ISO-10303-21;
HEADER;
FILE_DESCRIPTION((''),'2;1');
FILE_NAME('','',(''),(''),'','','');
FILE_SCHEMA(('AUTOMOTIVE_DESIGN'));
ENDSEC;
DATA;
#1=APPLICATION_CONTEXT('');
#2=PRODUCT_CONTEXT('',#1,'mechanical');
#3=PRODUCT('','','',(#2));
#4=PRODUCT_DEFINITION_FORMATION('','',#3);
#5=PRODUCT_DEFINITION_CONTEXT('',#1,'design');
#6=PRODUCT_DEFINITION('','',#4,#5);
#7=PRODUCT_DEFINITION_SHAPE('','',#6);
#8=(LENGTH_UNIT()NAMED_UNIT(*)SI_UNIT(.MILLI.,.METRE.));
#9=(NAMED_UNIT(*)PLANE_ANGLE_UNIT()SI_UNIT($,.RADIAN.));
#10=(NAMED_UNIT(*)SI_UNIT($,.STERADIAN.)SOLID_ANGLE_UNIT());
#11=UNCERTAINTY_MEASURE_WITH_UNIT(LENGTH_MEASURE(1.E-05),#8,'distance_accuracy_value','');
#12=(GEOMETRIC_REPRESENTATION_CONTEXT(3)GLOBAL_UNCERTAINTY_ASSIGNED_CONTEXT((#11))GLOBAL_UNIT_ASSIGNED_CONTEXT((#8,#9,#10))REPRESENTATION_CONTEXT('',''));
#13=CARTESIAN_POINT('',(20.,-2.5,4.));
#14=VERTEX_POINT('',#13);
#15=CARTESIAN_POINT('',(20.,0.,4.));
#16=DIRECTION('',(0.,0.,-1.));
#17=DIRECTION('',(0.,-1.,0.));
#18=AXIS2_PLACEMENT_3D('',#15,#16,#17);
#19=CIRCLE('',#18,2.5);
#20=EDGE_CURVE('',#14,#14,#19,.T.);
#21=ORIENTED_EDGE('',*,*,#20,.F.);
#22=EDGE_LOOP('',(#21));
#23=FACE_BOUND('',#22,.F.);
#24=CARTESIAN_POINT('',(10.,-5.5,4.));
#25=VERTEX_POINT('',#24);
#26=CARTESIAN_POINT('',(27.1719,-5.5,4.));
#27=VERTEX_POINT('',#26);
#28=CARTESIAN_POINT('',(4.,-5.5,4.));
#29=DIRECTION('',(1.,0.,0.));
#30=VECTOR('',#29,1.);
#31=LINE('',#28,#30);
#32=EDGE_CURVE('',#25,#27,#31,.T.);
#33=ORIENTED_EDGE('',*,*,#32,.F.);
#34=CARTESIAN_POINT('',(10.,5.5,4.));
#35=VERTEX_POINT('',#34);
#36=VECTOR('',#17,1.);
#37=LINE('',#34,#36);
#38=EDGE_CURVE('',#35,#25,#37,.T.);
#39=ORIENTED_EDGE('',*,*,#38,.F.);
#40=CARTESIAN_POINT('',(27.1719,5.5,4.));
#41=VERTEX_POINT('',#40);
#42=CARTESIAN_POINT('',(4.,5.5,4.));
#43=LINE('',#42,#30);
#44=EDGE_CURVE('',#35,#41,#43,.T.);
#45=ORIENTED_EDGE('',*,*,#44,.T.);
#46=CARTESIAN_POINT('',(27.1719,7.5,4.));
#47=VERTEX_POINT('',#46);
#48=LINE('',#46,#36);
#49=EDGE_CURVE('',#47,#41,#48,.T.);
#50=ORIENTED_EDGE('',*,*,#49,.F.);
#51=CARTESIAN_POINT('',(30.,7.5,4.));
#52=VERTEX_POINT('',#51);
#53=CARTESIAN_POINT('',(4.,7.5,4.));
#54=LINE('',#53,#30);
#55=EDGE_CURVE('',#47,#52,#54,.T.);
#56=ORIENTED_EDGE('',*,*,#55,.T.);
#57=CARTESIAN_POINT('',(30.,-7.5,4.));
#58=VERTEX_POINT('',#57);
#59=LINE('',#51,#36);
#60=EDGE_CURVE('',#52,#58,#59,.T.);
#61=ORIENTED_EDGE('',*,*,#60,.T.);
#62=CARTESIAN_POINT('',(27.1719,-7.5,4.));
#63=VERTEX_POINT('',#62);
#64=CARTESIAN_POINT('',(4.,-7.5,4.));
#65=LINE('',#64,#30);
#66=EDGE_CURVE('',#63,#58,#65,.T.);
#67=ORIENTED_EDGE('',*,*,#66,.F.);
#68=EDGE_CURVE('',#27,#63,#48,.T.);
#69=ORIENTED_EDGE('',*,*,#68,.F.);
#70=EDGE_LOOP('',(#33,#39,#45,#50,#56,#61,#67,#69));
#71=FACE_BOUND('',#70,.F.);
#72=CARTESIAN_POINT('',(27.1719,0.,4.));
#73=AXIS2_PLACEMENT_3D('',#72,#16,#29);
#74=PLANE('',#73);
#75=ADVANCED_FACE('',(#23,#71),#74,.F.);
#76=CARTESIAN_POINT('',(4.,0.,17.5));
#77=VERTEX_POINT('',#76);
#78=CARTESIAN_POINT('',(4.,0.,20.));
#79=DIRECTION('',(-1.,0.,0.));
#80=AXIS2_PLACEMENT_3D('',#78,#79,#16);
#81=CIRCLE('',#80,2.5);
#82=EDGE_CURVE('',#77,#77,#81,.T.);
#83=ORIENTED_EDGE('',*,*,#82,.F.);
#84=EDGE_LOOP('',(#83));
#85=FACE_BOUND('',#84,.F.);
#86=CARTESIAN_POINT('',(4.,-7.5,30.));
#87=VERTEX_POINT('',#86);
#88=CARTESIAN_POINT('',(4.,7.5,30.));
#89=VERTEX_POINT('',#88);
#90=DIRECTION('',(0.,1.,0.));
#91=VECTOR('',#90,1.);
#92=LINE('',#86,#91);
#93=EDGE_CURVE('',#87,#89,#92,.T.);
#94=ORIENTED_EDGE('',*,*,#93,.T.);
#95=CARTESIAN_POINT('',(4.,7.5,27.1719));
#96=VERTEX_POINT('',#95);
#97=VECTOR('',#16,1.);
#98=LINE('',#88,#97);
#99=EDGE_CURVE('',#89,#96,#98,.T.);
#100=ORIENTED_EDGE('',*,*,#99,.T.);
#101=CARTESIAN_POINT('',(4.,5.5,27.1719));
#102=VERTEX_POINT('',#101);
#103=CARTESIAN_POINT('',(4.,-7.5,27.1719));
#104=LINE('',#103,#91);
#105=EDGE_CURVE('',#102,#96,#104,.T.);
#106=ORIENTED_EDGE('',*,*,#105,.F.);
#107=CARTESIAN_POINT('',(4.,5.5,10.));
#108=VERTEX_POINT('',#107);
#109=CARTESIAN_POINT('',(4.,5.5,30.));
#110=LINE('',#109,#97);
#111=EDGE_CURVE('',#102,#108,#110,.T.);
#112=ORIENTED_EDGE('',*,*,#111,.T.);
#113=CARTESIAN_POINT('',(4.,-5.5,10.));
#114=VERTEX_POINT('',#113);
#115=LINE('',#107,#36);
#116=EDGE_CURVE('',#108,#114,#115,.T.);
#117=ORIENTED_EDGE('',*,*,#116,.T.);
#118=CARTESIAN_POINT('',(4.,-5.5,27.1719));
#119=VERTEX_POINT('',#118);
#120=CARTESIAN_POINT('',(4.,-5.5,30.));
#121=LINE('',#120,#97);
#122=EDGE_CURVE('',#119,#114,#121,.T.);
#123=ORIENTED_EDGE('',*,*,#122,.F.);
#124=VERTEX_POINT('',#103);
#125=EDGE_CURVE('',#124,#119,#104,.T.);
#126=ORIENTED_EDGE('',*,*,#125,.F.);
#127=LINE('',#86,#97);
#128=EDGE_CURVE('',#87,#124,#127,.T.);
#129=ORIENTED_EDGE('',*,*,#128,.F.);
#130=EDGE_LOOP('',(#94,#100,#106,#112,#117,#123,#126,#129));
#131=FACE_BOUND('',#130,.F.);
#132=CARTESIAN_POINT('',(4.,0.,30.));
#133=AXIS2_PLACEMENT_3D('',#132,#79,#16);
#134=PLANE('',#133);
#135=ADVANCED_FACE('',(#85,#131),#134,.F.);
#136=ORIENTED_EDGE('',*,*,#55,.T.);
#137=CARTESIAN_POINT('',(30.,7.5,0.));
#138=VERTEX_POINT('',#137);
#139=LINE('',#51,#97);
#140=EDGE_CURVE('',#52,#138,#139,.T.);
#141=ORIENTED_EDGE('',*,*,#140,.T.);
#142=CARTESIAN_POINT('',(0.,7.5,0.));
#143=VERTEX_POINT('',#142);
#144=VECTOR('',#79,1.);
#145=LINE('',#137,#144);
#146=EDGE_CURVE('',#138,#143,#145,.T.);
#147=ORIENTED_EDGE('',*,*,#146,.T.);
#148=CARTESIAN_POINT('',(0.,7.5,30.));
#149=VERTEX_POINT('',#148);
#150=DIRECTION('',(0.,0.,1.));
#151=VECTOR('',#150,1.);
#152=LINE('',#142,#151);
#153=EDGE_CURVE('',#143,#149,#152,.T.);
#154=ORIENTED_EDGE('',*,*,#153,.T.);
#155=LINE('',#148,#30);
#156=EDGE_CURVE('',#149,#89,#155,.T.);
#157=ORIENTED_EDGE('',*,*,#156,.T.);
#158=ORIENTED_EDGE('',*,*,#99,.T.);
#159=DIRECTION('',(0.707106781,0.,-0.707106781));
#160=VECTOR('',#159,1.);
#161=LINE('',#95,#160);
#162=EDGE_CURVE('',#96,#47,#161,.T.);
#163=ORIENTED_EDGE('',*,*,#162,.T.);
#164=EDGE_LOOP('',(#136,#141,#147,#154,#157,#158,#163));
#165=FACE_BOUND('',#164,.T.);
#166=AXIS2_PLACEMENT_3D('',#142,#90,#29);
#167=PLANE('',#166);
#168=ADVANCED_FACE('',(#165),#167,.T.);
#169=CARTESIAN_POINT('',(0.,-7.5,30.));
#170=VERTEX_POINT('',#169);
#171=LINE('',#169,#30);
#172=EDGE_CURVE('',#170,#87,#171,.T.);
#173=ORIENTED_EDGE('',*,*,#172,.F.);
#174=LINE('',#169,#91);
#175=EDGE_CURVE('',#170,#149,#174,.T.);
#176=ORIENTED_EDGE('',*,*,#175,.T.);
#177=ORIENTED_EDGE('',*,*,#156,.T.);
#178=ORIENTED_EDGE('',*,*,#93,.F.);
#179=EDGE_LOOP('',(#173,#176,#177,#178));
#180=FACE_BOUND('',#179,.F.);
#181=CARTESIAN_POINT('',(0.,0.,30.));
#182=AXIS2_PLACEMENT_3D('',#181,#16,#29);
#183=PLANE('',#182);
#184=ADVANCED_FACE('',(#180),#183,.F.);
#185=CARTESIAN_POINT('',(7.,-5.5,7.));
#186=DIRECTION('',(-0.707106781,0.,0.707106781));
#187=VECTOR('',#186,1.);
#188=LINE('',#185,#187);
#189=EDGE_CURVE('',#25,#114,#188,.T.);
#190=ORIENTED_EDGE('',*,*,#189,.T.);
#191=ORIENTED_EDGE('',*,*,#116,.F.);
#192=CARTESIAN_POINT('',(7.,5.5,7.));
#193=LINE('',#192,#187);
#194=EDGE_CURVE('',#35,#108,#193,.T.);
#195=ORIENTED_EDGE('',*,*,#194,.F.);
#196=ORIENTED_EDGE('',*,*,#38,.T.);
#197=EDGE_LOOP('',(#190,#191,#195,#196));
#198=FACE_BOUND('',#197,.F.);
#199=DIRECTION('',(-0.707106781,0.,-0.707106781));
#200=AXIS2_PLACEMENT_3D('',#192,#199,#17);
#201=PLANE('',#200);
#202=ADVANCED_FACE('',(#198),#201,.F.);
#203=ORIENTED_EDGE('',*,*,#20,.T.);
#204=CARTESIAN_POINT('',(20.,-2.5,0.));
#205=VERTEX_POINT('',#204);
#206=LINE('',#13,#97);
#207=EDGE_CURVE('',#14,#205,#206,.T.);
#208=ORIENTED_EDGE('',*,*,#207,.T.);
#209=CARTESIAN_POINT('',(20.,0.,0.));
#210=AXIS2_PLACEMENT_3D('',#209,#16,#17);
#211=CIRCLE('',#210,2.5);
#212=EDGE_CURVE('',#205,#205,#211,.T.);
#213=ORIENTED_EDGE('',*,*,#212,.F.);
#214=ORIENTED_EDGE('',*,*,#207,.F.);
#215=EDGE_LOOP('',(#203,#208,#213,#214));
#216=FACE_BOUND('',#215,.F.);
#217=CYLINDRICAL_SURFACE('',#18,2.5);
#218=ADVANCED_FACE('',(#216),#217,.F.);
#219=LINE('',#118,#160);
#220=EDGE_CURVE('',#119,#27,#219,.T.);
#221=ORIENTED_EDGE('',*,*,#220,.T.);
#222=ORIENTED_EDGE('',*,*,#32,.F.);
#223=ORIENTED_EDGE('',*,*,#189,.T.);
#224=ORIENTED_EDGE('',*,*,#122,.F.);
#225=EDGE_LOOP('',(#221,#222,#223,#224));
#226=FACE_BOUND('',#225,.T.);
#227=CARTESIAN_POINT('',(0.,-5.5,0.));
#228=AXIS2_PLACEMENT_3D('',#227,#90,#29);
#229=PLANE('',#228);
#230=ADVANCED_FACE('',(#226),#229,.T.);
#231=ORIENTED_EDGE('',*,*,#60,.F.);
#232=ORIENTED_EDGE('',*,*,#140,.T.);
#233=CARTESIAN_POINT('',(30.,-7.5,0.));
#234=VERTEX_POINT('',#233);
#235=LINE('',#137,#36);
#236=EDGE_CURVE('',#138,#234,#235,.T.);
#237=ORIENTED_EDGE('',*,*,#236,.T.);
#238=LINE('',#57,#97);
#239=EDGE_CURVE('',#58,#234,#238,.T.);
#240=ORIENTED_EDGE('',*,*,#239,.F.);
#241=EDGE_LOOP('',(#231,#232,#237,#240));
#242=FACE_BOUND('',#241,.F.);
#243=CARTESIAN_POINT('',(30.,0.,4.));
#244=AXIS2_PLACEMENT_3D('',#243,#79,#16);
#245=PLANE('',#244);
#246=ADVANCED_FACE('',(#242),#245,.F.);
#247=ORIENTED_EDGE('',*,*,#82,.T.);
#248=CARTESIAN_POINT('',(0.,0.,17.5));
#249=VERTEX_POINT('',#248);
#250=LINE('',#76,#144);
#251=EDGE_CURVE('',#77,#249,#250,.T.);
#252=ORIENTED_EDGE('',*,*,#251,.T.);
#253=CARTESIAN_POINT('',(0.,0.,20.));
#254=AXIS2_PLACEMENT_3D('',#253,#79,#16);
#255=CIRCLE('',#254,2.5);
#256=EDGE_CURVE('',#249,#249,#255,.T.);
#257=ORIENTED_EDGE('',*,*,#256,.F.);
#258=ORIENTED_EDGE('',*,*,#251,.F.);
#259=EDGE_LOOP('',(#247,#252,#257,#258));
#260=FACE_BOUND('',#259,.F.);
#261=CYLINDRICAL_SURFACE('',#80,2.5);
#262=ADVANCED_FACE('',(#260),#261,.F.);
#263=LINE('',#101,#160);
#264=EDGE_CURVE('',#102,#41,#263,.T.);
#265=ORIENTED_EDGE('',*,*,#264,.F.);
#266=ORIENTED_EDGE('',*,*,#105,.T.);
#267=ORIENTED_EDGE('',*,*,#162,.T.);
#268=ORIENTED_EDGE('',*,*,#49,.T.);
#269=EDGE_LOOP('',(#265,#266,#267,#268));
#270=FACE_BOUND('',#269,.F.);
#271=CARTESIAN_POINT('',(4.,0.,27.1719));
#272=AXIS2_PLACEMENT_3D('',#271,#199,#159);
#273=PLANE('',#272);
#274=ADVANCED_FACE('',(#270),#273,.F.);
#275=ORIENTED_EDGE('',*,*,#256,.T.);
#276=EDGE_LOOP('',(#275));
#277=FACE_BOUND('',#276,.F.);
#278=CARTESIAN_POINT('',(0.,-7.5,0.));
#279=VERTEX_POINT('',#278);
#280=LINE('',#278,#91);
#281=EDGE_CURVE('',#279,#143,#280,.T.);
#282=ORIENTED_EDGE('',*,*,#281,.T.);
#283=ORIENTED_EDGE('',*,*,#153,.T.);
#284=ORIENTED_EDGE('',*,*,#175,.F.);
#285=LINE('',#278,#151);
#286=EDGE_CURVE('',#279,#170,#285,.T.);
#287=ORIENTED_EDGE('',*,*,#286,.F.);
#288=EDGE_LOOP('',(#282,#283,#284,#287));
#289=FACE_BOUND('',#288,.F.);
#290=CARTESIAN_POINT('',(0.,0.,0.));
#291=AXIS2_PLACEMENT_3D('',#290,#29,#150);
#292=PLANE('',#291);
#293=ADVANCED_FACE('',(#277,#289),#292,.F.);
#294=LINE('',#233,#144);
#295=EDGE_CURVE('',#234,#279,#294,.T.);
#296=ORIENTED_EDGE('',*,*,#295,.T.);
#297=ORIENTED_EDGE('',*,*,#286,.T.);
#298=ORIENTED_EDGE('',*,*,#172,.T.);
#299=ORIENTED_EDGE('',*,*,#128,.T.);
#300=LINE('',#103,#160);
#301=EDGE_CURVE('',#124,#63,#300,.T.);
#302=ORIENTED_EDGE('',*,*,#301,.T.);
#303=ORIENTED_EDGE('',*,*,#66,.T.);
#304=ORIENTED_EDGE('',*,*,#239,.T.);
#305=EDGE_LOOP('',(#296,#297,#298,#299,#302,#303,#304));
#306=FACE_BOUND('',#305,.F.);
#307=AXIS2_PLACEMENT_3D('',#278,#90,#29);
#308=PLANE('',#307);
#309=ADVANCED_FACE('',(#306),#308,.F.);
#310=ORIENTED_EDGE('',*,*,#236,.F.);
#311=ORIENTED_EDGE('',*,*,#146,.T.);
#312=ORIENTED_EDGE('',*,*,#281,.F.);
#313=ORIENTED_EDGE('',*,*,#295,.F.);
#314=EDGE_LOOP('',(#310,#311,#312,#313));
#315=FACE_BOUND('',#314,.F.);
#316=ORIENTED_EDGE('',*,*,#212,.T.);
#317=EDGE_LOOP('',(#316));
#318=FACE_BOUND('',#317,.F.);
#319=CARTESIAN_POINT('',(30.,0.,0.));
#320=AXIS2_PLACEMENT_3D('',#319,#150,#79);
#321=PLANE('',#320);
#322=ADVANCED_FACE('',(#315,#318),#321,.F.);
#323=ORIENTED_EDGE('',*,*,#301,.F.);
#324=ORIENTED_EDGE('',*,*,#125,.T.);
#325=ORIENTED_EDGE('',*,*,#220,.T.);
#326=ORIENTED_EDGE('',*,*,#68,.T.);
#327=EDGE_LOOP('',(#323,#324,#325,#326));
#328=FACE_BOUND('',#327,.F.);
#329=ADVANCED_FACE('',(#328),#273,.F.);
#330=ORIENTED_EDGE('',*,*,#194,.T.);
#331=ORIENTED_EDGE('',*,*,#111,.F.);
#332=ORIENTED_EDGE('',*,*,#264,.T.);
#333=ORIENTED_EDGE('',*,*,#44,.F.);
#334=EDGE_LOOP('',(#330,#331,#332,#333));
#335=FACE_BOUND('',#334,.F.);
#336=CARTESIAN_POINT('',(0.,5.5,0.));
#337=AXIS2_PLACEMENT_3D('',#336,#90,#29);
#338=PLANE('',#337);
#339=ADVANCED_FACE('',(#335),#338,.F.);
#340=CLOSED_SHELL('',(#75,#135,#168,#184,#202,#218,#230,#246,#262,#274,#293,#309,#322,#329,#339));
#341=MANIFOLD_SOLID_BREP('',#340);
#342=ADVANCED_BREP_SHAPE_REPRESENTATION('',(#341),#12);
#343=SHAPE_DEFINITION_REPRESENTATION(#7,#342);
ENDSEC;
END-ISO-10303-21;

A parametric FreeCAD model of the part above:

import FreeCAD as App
import Part
import Sketcher

V = App.Vector


def edges_at(feature, points):
    """Names of the edges that pass closest to the given points."""
    edges = feature.Shape.Edges
    near = lambda p: min(range(len(edges)), key=lambda i: edges[i].distToShape(Part.Vertex(*p))[0])
    return sorted({f"Edge{near(p) + 1}" for p in points})

doc = App.newDocument("Part")
params = doc.addObject("Spreadsheet::Sheet", "Params")
for row, (alias, value) in enumerate([
    ("sketch1_width", "30 mm"),
    ("sketch1_width2", "4 mm"),
    ("sketch1_length", "32.77 mm"),
    ("pad1_length", "15 mm"),
    ("sketch2_length", "32.77 mm"),
    ("pocket1_length", "11 mm"),
    ("chamfer_size", "6 mm"),
    ("sketch3_diameter", "5 mm"),
    ("hole_diameter", "5 mm"),
    ("hole_depth", "4 mm"),
    ("sketch4_diameter", "5 mm"),
    ("hole2_diameter", "5 mm"),
    ("hole2_depth", "4 mm"),
], start=1):
    params.set(f"A{row}", alias)
    params.set(f"B{row}", "=" + value)
    params.setAlias(f"B{row}", alias)

body = doc.addObject("PartDesign::Body", "Body")

# Sketch on XZ plane
sketch1 = body.newObject("Sketcher::SketchObject", "Sketch")
sketch1.AttachmentSupport = (doc.getObject("XZ_Plane"), [""])
sketch1.MapMode = "FlatFace"
sketch1.addGeometry(Part.LineSegment(V(30, 0, 0), V(0, 0, 0)), False)
sketch1.addGeometry(Part.LineSegment(V(0, 0, 0), V(0, 30, 0)), False)
sketch1.addGeometry(Part.LineSegment(V(0, 30, 0), V(4, 30, 0)), False)
sketch1.addGeometry(Part.LineSegment(V(4, 30, 0), V(4, 27.2, 0)), False)
sketch1.addGeometry(Part.LineSegment(V(4, 27.2, 0), V(27.2, 4, 0)), False)
sketch1.addGeometry(Part.LineSegment(V(27.2, 4, 0), V(30, 4, 0)), False)
sketch1.addGeometry(Part.LineSegment(V(30, 4, 0), V(30, 0, 0)), False)
sketch1.addConstraint(Sketcher.Constraint("Coincident", 0, 2, 1, 1))
sketch1.addConstraint(Sketcher.Constraint("Coincident", 1, 2, 2, 1))
sketch1.addConstraint(Sketcher.Constraint("Coincident", 2, 2, 3, 1))
sketch1.addConstraint(Sketcher.Constraint("Coincident", 3, 2, 4, 1))
sketch1.addConstraint(Sketcher.Constraint("Coincident", 4, 2, 5, 1))
sketch1.addConstraint(Sketcher.Constraint("Coincident", 5, 2, 6, 1))
sketch1.addConstraint(Sketcher.Constraint("Coincident", 6, 2, 0, 1))
sketch1.addConstraint(Sketcher.Constraint("Horizontal", 0))
sketch1.addConstraint(Sketcher.Constraint("Vertical", 1))
sketch1.addConstraint(Sketcher.Constraint("Horizontal", 2))
sketch1.addConstraint(Sketcher.Constraint("Vertical", 3))
sketch1.addConstraint(Sketcher.Constraint("Horizontal", 5))
sketch1.addConstraint(Sketcher.Constraint("Vertical", 6))
sketch1.addConstraint(Sketcher.Constraint("Coincident", 0, 2, -1, 1))
sketch1.addConstraint(Sketcher.Constraint("Equal", 0, 1))
sketch1.addConstraint(Sketcher.Constraint("Equal", 5, 3))
sketch1.addConstraint(Sketcher.Constraint("Equal", 2, 6))
sketch1.addConstraint(Sketcher.Constraint("DistanceX", 0, 2, 0, 1, 30.0))
sketch1.addConstraint(Sketcher.Constraint("DistanceX", 2, 1, 2, 2, 4.0))
sketch1.addConstraint(Sketcher.Constraint("Distance", 4, 32.77))
sketch1.setExpression("Constraints[17]", "Params.sketch1_width")
sketch1.setExpression("Constraints[18]", "Params.sketch1_width2")
sketch1.setExpression("Constraints[19]", "Params.sketch1_length")
pad1 = body.newObject("PartDesign::Pad", "Pad")
pad1.Profile = sketch1
pad1.setExpression("Length", "Params.pad1_length")
pad1.Midplane = True

# Sketch on XZ plane
sketch2 = body.newObject("Sketcher::SketchObject", "Sketch001")
sketch2.AttachmentSupport = (doc.getObject("XZ_Plane"), [""])
sketch2.MapMode = "FlatFace"
sketch2.addGeometry(Part.LineSegment(V(4, 4, 0), V(4, 27, 0)), False)
sketch2.addGeometry(Part.LineSegment(V(4, 27, 0), V(27, 4, 0)), False)
sketch2.addGeometry(Part.LineSegment(V(27, 4, 0), V(4, 4, 0)), False)
sketch2.addConstraint(Sketcher.Constraint("Coincident", 0, 2, 1, 1))
sketch2.addConstraint(Sketcher.Constraint("Coincident", 1, 2, 2, 1))
sketch2.addConstraint(Sketcher.Constraint("Coincident", 2, 2, 0, 1))
sketch2.addConstraint(Sketcher.Constraint("Vertical", 0))
sketch2.addConstraint(Sketcher.Constraint("Horizontal", 2))
sketch2.addConstraint(Sketcher.Constraint("Equal", 2, 0))
sketch2.addConstraint(Sketcher.Constraint("DistanceX", -1, 1, 0, 2, 4.0))
sketch2.addConstraint(Sketcher.Constraint("DistanceY", -1, 1, 1, 2, 4.0))
sketch2.addConstraint(Sketcher.Constraint("Distance", 1, 32.77))
sketch2.setExpression("Constraints[8]", "Params.sketch2_length")
pocket1 = body.newObject("PartDesign::Pocket", "Pocket")
pocket1.Profile = sketch2
pocket1.setExpression("Length", "Params.pocket1_length")
pocket1.Midplane = True
doc.recompute()

chamfer = body.newObject("PartDesign::Chamfer", "Chamfer")
chamfer.Base = (pocket1, edges_at(pocket1, [(4, 0, 4)]))
chamfer.setExpression("Size", "Params.chamfer_size")

# Sketch on XY plane
sketch3 = body.newObject("Sketcher::SketchObject", "Sketch002")
sketch3.AttachmentSupport = (doc.getObject("XY_Plane"), [""])
sketch3.MapMode = "FlatFace"
sketch3.AttachmentOffset = App.Placement(V(0, 0, 4), App.Rotation())
sketch3.addGeometry(Part.Circle(V(20, 0, 0), V(0, 0, 1), 2.5), False)
sketch3.addConstraint(Sketcher.Constraint("PointOnObject", 0, 3, -1))
sketch3.addConstraint(Sketcher.Constraint("Diameter", 0, 5.0))
sketch3.addConstraint(Sketcher.Constraint("DistanceX", -1, 1, 0, 3, 20.0))
sketch3.setExpression("Constraints[1]", "Params.sketch3_diameter")
doc.recompute()
hole = body.newObject("PartDesign::Hole", "Hole")
hole.Profile = sketch3
hole.ThreadType = "None"
hole.setExpression("Diameter", "Params.hole_diameter")
hole.DepthType = "Dimension"
hole.setExpression("Depth", "Params.hole_depth")
hole.DrillPoint = "Angled"
hole.DrillPointAngle = 118

# Sketch on YZ plane
sketch4 = body.newObject("Sketcher::SketchObject", "Sketch003")
sketch4.AttachmentSupport = (doc.getObject("YZ_Plane"), [""])
sketch4.MapMode = "FlatFace"
sketch4.AttachmentOffset = App.Placement(V(0, 0, 4), App.Rotation())
sketch4.addGeometry(Part.Circle(V(0, 20, 0), V(0, 0, 1), 2.5), False)
sketch4.addConstraint(Sketcher.Constraint("PointOnObject", 0, 3, -2))
sketch4.addConstraint(Sketcher.Constraint("Diameter", 0, 5.0))
sketch4.addConstraint(Sketcher.Constraint("DistanceY", -1, 1, 0, 3, 20.0))
sketch4.setExpression("Constraints[1]", "Params.sketch4_diameter")
doc.recompute()
hole2 = body.newObject("PartDesign::Hole", "Hole001")
hole2.Profile = sketch4
hole2.ThreadType = "None"
hole2.setExpression("Diameter", "Params.hole2_diameter")
hole2.DepthType = "Dimension"
hole2.setExpression("Depth", "Params.hole2_depth")
hole2.DrillPoint = "Angled"
hole2.DrillPointAngle = 118

doc.recompute()
